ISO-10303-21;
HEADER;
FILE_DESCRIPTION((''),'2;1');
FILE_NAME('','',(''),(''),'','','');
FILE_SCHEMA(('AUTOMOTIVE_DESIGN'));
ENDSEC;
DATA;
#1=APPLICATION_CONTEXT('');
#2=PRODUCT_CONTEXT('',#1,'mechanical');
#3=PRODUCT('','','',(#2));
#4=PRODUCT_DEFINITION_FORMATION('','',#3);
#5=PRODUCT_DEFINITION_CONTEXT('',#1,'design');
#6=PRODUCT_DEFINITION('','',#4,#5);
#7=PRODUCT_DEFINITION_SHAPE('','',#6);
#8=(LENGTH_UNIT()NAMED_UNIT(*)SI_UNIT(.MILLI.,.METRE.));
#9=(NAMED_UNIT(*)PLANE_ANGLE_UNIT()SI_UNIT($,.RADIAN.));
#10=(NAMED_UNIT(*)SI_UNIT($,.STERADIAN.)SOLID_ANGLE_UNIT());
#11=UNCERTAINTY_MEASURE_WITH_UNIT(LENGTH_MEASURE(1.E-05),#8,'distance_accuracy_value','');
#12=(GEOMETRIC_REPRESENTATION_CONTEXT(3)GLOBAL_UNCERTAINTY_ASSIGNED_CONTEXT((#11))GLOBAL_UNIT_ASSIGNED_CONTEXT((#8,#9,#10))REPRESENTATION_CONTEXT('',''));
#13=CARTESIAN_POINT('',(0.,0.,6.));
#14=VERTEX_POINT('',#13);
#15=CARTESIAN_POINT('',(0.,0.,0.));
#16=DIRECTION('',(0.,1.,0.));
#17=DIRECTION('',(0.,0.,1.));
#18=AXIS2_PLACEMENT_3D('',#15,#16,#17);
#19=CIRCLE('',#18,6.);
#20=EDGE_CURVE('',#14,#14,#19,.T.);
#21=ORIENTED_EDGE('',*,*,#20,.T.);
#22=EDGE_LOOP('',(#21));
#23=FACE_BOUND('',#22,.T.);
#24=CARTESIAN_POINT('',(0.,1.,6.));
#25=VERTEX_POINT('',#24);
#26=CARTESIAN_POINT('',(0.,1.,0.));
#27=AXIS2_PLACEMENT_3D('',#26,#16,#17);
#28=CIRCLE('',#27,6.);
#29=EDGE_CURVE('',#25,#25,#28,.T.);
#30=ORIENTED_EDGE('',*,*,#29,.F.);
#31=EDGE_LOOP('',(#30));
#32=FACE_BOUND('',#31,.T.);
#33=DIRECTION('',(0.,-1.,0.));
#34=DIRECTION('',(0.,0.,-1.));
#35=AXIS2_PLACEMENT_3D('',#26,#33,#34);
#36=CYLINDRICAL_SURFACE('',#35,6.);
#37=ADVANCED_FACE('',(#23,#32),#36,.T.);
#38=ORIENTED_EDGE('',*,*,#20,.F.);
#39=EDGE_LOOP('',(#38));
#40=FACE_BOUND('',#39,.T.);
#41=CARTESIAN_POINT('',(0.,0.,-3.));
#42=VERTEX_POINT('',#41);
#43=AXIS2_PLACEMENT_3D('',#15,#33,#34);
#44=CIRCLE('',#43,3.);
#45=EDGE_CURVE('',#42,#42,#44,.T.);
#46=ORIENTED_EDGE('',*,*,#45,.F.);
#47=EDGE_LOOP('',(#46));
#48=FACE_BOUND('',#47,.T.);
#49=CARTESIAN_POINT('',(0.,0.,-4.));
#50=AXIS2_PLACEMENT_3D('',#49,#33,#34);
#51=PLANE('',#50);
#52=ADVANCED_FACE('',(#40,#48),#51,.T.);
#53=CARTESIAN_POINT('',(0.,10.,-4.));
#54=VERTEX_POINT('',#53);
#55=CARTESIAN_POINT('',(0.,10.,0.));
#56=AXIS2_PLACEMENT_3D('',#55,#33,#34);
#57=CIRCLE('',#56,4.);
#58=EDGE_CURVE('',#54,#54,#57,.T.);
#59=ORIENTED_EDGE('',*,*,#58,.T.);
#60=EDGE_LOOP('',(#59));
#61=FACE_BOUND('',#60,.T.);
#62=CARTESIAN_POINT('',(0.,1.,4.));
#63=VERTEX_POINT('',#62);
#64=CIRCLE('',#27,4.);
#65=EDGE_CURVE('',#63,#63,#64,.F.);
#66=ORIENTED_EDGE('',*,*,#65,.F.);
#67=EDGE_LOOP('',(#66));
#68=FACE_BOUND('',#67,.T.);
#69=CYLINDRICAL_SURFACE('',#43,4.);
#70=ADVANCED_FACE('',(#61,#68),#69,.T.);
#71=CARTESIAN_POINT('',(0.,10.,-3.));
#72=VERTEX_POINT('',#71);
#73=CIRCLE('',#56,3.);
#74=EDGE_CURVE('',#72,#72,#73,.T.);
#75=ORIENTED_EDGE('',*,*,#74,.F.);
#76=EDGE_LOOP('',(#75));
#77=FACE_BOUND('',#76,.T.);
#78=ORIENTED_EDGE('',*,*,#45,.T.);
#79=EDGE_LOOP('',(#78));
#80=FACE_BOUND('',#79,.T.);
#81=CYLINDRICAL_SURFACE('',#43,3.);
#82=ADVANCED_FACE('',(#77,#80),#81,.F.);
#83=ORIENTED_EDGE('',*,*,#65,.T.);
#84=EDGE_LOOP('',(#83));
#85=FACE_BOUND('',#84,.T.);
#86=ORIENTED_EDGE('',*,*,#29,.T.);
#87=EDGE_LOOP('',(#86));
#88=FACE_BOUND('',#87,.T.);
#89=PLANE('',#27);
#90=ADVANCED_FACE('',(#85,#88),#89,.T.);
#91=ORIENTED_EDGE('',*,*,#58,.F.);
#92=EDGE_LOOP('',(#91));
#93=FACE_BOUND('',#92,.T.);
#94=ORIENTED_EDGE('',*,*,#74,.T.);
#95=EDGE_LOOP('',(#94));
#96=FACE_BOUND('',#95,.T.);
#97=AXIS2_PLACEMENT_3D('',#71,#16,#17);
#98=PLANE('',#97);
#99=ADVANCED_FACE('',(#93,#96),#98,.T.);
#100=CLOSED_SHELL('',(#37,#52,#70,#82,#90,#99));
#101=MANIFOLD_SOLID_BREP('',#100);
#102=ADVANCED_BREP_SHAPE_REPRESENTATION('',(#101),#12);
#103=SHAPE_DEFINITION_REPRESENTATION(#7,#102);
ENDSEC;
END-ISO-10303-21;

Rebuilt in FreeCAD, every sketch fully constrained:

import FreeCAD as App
import Part
import Sketcher
Q = App.Units.Quantity


def add_polygon(sketch, points):
    """Adds a closed chain of lines whose ends are joined by coincident constraints."""
    first, n = sketch.GeometryCount, len(points)
    for a, b in zip(points, points[1:] + points[:1]):
        sketch.addGeometry(Part.LineSegment(App.Vector(*a, 0), App.Vector(*b, 0)), False)
    for i in range(n):
        sketch.addConstraint(Sketcher.Constraint("Coincident", first + i, 2, first + (i + 1) % n, 1))

doc = App.newDocument("Part")
body = doc.addObject("PartDesign::Body", "Body")

sketch1 = body.newObject("Sketcher::SketchObject", "Sketch")
sketch1.AttachmentSupport = (doc.getObject("YZ_Plane"), [""])
sketch1.MapMode = "FlatFace"
add_polygon(sketch1, [(10, -3), (0, -3), (0, -4), (10, -4)])
sketch1.addConstraint([
    Sketcher.Constraint("Horizontal", 0),
    Sketcher.Constraint("Vertical", 1),
    Sketcher.Constraint("Horizontal", 2),
    Sketcher.Constraint("Vertical", 3),
    Sketcher.Constraint("PointOnObject", 0, 2, -2),
    Sketcher.Constraint("DistanceX", 0, 2, 0, 1, Q("10 mm")),
    Sketcher.Constraint("DistanceY", 1, 2, 1, 1, Q("1 mm")),
    Sketcher.Constraint("DistanceY", 0, 2, -1, 1, Q("3 mm")),
])
revolution = body.newObject("PartDesign::Revolution", "Revolution")
revolution.Profile = sketch1
revolution.ReferenceAxis = (sketch1, ["H_Axis"])
revolution.Angle = 360

sketch2 = body.newObject("Sketcher::SketchObject", "Sketch001")
sketch2.AttachmentSupport = (doc.getObject("XZ_Plane"), [""])
sketch2.MapMode = "FlatFace"
sketch2.addGeometry([
    Part.Circle(App.Vector(0, 0, 0), App.Vector(0, 0, 1), 6),
    Part.Circle(App.Vector(0, 0, 0), App.Vector(0, 0, 1), 4),
], False)
sketch2.addConstraint([
    Sketcher.Constraint("Coincident", 0, 3, -1, 1),
    Sketcher.Constraint("Coincident", 1, 3, -1, 1),
    Sketcher.Constraint("Diameter", 0, Q("12 mm")),
    Sketcher.Constraint("Diameter", 1, Q("8 mm")),
])
pad1 = body.newObject("PartDesign::Pad", "Pad")
pad1.Profile = sketch2
pad1.Length = 1
pad1.Reversed = True

doc.recompute()
